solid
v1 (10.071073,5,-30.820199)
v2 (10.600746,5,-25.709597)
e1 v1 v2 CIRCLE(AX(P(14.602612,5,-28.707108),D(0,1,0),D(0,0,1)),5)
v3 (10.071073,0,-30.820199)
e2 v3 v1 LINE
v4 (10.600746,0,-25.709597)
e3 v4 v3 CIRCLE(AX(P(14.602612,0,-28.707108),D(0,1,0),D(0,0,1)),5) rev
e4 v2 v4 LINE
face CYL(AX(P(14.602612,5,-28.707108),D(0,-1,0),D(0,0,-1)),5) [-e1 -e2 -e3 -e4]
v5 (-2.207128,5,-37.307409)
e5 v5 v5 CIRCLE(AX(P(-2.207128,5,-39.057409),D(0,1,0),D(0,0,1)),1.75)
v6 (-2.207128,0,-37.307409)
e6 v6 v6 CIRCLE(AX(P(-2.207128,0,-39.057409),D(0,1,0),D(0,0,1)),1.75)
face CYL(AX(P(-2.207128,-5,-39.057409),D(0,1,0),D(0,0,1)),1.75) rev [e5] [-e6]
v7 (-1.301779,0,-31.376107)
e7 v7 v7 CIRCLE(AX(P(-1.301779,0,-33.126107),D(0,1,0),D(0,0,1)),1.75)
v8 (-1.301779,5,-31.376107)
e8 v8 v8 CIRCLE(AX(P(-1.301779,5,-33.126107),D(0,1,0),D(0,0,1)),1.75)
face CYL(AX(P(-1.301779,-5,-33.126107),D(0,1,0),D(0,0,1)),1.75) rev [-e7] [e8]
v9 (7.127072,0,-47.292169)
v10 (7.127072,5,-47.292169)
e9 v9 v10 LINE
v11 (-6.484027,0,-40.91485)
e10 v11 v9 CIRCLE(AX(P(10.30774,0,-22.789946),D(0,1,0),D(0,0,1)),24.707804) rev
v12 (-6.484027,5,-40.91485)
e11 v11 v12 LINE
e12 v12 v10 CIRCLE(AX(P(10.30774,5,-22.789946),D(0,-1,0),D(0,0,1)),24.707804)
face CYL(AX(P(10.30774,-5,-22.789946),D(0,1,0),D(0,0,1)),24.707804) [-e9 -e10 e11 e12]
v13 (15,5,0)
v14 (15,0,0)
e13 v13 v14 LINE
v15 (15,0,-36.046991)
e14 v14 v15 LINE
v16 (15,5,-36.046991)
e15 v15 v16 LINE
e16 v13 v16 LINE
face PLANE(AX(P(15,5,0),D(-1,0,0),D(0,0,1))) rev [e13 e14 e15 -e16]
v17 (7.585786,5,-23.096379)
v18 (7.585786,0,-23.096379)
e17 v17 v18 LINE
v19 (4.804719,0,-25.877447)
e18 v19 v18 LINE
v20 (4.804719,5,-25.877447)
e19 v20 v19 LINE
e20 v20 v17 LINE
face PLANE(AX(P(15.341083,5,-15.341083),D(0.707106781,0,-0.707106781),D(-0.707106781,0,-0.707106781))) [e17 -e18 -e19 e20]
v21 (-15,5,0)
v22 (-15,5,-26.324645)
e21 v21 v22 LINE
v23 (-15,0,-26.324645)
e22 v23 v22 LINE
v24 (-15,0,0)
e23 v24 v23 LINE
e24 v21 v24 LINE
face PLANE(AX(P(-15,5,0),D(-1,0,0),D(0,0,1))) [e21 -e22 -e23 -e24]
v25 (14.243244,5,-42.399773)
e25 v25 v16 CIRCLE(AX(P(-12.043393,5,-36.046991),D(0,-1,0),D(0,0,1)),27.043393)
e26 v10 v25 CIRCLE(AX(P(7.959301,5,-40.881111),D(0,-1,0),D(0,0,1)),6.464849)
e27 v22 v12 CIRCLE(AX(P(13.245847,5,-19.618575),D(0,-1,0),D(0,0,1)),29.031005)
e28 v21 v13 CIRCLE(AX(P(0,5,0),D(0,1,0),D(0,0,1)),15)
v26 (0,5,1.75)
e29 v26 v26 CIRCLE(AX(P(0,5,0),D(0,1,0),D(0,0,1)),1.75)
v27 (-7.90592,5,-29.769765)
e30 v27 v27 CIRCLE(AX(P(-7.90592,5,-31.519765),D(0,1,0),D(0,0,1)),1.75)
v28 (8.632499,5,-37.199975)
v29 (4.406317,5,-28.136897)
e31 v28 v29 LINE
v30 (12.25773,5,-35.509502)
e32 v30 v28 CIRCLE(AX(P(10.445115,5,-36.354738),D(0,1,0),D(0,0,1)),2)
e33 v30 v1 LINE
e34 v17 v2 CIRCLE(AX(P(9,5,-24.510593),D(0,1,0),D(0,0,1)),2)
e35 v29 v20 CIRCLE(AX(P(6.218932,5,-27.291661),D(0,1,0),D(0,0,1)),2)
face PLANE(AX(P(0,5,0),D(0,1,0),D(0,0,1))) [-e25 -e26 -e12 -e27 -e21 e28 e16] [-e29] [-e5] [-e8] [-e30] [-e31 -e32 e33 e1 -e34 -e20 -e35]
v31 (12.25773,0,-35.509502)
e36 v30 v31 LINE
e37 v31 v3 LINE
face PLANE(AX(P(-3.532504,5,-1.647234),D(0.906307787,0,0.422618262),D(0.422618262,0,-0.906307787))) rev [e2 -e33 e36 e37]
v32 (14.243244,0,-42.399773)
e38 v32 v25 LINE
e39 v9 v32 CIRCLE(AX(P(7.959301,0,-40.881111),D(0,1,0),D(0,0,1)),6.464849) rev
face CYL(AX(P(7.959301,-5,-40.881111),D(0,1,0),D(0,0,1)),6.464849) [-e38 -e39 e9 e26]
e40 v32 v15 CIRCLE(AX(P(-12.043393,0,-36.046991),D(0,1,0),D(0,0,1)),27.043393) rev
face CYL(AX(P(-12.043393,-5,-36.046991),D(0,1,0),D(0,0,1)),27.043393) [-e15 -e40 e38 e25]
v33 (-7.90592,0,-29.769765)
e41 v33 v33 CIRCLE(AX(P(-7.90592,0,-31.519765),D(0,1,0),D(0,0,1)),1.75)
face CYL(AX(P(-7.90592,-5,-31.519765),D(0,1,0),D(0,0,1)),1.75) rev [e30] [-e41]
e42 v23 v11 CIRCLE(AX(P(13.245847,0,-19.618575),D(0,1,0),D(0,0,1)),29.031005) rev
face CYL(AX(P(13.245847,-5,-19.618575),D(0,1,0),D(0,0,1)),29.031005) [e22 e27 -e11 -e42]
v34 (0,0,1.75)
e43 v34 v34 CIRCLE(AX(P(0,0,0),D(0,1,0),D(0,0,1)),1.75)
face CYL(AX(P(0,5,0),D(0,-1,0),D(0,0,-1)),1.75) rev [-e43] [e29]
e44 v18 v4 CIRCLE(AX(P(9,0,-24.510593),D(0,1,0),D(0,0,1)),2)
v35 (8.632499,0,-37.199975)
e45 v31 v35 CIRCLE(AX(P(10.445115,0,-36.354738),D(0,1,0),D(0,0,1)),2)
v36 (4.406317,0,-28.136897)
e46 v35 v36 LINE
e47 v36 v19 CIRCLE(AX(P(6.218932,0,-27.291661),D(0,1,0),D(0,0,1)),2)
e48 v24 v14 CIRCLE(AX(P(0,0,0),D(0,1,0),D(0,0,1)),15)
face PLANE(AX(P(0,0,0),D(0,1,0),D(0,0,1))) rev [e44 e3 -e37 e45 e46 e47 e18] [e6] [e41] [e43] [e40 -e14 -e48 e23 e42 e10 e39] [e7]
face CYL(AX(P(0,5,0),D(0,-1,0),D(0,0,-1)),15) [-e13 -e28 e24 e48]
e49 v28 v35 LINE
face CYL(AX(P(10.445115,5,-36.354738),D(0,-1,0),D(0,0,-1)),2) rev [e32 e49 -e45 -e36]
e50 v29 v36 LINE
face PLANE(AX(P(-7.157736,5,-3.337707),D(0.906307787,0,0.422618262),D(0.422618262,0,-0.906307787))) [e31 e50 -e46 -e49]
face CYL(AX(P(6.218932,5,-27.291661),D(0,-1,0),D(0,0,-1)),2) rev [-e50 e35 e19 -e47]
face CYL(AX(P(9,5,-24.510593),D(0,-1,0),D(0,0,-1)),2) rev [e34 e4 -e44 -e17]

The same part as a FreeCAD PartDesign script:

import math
import FreeCAD as App
import Part
import Sketcher
from FreeCAD import Vector
Q = App.Units.Quantity


def edges_at(feature, points):
    """Names of the edges that pass closest to the given points."""
    edges = feature.Shape.Edges
    near = lambda p: min(range(len(edges)), key=lambda i: edges[i].distToShape(Part.Vertex(*p))[0])
    return sorted({f"Edge{near(p) + 1}" for p in points})

doc = App.newDocument("Part")
body = doc.addObject("PartDesign::Body", "Body")

# Sketch on XZ plane
sketch1 = body.newObject("Sketcher::SketchObject", "Sketch")
sketch1.AttachmentSupport = (doc.getObject("XZ_Plane"), [""])
sketch1.MapMode = "FlatFace"
sketch1.addGeometry([
    Part.LineSegment(Vector(-15, -50, 0), Vector(-15, 0, 0)),  # 0
    Part.ArcOfCircle(Part.Circle(Vector(0, 0, 0), Vector(0, 0, 1), 15), math.radians(0), math.radians(180)),  # 1
    Part.LineSegment(Vector(15, 0, 0), Vector(15, -50, 0)),  # 2
    Part.ArcOfCircle(Part.Circle(Vector(0, -50, 0), Vector(0, 0, 1), 15), math.radians(180), math.radians(360)),  # 3
    Part.Circle(Vector(0, 0, 0), Vector(0, 0, 1), 1.8),  # 4
    Part.LineSegment(Vector(12.3, -35.5, 0), Vector(8.6, -27.7, 0)),  # 5
    Part.LineSegment(Vector(8.6, -27.7, 0), Vector(10.4, -25.9, 0)),  # 6
    Part.ArcOfCircle(Part.Circle(Vector(9, -24.5, 0), Vector(0, 0, 1), 2), math.radians(-45), math.radians(135)),  # 7
    Part.LineSegment(Vector(7.6, -23.1, 0), Vector(4.8, -25.9, 0)),  # 8
    Part.ArcOfCircle(Part.Circle(Vector(6.2, -27.3, 0), Vector(0, 0, 1), 2), math.radians(135), math.radians(205)),  # 9
    Part.LineSegment(Vector(4.4, -28.1, 0), Vector(8.6, -37.2, 0)),  # 10
    Part.ArcOfCircle(Part.Circle(Vector(10.4, -36.4, 0), Vector(0, 0, 1), 2), math.radians(-155), math.radians(25)),  # 11
], False)
sketch1.addConstraint([
    Sketcher.Constraint("Tangent", 0, 2, 1, 2),
    Sketcher.Constraint("Tangent", 1, 1, 2, 1),
    Sketcher.Constraint("Tangent", 2, 2, 3, 2),
    Sketcher.Constraint("Tangent", 3, 1, 0, 1),
    Sketcher.Constraint("Coincident", 5, 2, 6, 1),
    Sketcher.Constraint("Tangent", 6, 2, 7, 1),
    Sketcher.Constraint("Tangent", 7, 2, 8, 1),
    Sketcher.Constraint("Tangent", 8, 2, 9, 1),
    Sketcher.Constraint("Tangent", 9, 2, 10, 1),
    Sketcher.Constraint("Tangent", 10, 2, 11, 1),
    Sketcher.Constraint("Tangent", 11, 2, 5, 1),
    Sketcher.Constraint("Vertical", 0),
    Sketcher.Constraint("Vertical", 2),
    Sketcher.Constraint("Coincident", 1, 3, -1, 1),
    Sketcher.Constraint("Coincident", 4, 3, -1, 1),
    Sketcher.Constraint("Equal", 7, 9),
    Sketcher.Constraint("Equal", 9, 11),
    Sketcher.Constraint("Parallel", 6, 8),
    Sketcher.Constraint("Parallel", 5, 10),
    Sketcher.Constraint("Radius", 1, 15.0),
    Sketcher.Constraint("Radius", 7, 2.0),
    Sketcher.Constraint("Diameter", 4, 3.5),
    Sketcher.Constraint("DistanceY", 0, 1, 0, 2, 50.0),
    Sketcher.Constraint("Angle", 5, Q("115 deg")),
    Sketcher.Constraint("Angle", 6, Q("45 deg")),
    Sketcher.Constraint("Distance", 10, 10.0),
    Sketcher.Constraint("DistanceX", -1, 1, 7, 3, 9.0),
    Sketcher.Constraint("DistanceX", -1, 1, 10, 2, 8.632499),
    Sketcher.Constraint("DistanceY", 11, 2, -1, 1, 35.509502),
])
pad1 = body.newObject("PartDesign::Pad", "Pad")
pad1.Profile = sketch1
pad1.Length = 5
pad1.Reversed = True
doc.recompute()

fillet = body.newObject("PartDesign::Fillet", "Fillet")
fillet.Base = (pad1, edges_at(pad1, [(8.623, 2.5, -27.716)]))
fillet.Radius = 5

# Sketch on XZ plane
sketch2 = body.newObject("Sketcher::SketchObject", "Sketch001")
sketch2.AttachmentSupport = (doc.getObject("XZ_Plane"), [""])
sketch2.MapMode = "FlatFace"
sketch2.AttachmentOffset = App.Placement(Vector(0, 0, -5), App.Rotation())
sketch2.addGeometry([
    Part.LineSegment(Vector(-41, -69, 0), Vector(-15, -26, 0)),  # 0
    Part.ArcOfCircle(Part.Circle(Vector(13, -20, 0), Vector(0, 0, 1), 29), math.radians(-167), math.radians(-133)),  # 1
    Part.ArcOfCircle(Part.Circle(Vector(10, -23, 0), Vector(0, 0, 1), 25), math.radians(-133), math.radians(-97)),  # 2
    Part.ArcOfCircle(Part.Circle(Vector(8, -41, 0), Vector(0, 0, 1), 6), math.radians(-97), math.radians(-14)),  # 3
    Part.ArcOfCircle(Part.Circle(Vector(-12, -36, 0), Vector(0, 0, 1), 27), math.radians(-13.59), math.radians(0)),  # 4
    Part.LineSegment(Vector(15, -36, 0), Vector(39, -103, 0)),  # 5
    Part.LineSegment(Vector(39, -103, 0), Vector(-59, -111, 0)),  # 6
    Part.LineSegment(Vector(-59, -111, 0), Vector(-41, -69, 0)),  # 7
], False)
sketch2.addConstraint([
    Sketcher.Constraint("Coincident", 0, 2, 1, 1),
    Sketcher.Constraint("Tangent", 1, 2, 2, 1),
    Sketcher.Constraint("Tangent", 2, 2, 3, 1),
    Sketcher.Constraint("Tangent", 3, 2, 4, 1),
    Sketcher.Constraint("Coincident", 4, 2, 5, 1),
    Sketcher.Constraint("Coincident", 5, 2, 6, 1),
    Sketcher.Constraint("Coincident", 6, 2, 7, 1),
    Sketcher.Constraint("Coincident", 7, 2, 0, 1),
    Sketcher.Constraint("DistanceX", 0, 2, -1, 1, 15.0),
    Sketcher.Constraint("DistanceX", -1, 1, 4, 2, 15.0),
    Sketcher.Constraint("Radius", 3, 6.464849),
    Sketcher.Constraint("Radius", 1, 29.031005),
    Sketcher.Constraint("Radius", 2, 24.707804),
    Sketcher.Constraint("Radius", 4, 27.043393),
    Sketcher.Constraint("Distance", 7, 45.489402),
    Sketcher.Constraint("DistanceX", -1, 1, 3, 3, 7.959301),
    Sketcher.Constraint("DistanceY", 0, 2, 2, 3, 3.534699),
    Sketcher.Constraint("DistanceX", 1, 2, 2, 2, 13.611099),
    Sketcher.Constraint("Distance", 0, 50.136921),
    Sketcher.Constraint("DistanceY", 3, 3, -1, 1, 40.881111),
    Sketcher.Constraint("DistanceY", 4, 2, -1, 1, 36.046991),
    Sketcher.Constraint("DistanceX", 2, 2, 5, 2, 32.157321),
    Sketcher.Constraint("DistanceY", 5, 2, 3, 2, 60.426021),
    Sketcher.Constraint("DistanceX", 6, 2, 1, 2, 52.287941),
    Sketcher.Constraint("DistanceX", 7, 2, 1, 2, 34.441568),
])
pocket1 = body.newObject("PartDesign::Pocket", "Pocket")
pocket1.Profile = sketch2
pocket1.Length = 10
pocket1.Reversed = True

# Sketch on XZ plane
sketch3 = body.newObject("Sketcher::SketchObject", "Sketch002")
sketch3.AttachmentSupport = (doc.getObject("XZ_Plane"), [""])
sketch3.MapMode = "FlatFace"
sketch3.AttachmentOffset = App.Placement(Vector(0, 0, -5), App.Rotation())
sketch3.addGeometry([
    Part.Circle(Vector(-1.3, -33.1, 0), Vector(0, 0, 1), 1.8),
    Part.Circle(Vector(-2.2, -39.1, 0), Vector(0, 0, 1), 1.8),
    Part.Circle(Vector(-7.9, -31.5, 0), Vector(0, 0, 1), 1.8),
], False)
sketch3.addConstraint([
    Sketcher.Constraint("Equal", 0, 1),
    Sketcher.Constraint("Equal", 1, 2),
    Sketcher.Constraint("Diameter", 0, 3.5),
    Sketcher.Constraint("DistanceX", 0, 3, -1, 1, 1.301779),
    Sketcher.Constraint("DistanceY", 1, 3, -1, 1, 39.057409),
    Sketcher.Constraint("DistanceX", 2, 3, -1, 1, 7.90592),
    Sketcher.Constraint("DistanceX", 1, 3, 0, 3, 0.905349),
    Sketcher.Constraint("DistanceY", 0, 3, -1, 1, 33.126107),
    Sketcher.Constraint("DistanceY", 2, 3, -1, 1, 31.519765),
])
pocket2 = body.newObject("PartDesign::Pocket", "Pocket001")
pocket2.Profile = sketch3
pocket2.Length = 10
pocket2.Reversed = True

doc.recompute()
